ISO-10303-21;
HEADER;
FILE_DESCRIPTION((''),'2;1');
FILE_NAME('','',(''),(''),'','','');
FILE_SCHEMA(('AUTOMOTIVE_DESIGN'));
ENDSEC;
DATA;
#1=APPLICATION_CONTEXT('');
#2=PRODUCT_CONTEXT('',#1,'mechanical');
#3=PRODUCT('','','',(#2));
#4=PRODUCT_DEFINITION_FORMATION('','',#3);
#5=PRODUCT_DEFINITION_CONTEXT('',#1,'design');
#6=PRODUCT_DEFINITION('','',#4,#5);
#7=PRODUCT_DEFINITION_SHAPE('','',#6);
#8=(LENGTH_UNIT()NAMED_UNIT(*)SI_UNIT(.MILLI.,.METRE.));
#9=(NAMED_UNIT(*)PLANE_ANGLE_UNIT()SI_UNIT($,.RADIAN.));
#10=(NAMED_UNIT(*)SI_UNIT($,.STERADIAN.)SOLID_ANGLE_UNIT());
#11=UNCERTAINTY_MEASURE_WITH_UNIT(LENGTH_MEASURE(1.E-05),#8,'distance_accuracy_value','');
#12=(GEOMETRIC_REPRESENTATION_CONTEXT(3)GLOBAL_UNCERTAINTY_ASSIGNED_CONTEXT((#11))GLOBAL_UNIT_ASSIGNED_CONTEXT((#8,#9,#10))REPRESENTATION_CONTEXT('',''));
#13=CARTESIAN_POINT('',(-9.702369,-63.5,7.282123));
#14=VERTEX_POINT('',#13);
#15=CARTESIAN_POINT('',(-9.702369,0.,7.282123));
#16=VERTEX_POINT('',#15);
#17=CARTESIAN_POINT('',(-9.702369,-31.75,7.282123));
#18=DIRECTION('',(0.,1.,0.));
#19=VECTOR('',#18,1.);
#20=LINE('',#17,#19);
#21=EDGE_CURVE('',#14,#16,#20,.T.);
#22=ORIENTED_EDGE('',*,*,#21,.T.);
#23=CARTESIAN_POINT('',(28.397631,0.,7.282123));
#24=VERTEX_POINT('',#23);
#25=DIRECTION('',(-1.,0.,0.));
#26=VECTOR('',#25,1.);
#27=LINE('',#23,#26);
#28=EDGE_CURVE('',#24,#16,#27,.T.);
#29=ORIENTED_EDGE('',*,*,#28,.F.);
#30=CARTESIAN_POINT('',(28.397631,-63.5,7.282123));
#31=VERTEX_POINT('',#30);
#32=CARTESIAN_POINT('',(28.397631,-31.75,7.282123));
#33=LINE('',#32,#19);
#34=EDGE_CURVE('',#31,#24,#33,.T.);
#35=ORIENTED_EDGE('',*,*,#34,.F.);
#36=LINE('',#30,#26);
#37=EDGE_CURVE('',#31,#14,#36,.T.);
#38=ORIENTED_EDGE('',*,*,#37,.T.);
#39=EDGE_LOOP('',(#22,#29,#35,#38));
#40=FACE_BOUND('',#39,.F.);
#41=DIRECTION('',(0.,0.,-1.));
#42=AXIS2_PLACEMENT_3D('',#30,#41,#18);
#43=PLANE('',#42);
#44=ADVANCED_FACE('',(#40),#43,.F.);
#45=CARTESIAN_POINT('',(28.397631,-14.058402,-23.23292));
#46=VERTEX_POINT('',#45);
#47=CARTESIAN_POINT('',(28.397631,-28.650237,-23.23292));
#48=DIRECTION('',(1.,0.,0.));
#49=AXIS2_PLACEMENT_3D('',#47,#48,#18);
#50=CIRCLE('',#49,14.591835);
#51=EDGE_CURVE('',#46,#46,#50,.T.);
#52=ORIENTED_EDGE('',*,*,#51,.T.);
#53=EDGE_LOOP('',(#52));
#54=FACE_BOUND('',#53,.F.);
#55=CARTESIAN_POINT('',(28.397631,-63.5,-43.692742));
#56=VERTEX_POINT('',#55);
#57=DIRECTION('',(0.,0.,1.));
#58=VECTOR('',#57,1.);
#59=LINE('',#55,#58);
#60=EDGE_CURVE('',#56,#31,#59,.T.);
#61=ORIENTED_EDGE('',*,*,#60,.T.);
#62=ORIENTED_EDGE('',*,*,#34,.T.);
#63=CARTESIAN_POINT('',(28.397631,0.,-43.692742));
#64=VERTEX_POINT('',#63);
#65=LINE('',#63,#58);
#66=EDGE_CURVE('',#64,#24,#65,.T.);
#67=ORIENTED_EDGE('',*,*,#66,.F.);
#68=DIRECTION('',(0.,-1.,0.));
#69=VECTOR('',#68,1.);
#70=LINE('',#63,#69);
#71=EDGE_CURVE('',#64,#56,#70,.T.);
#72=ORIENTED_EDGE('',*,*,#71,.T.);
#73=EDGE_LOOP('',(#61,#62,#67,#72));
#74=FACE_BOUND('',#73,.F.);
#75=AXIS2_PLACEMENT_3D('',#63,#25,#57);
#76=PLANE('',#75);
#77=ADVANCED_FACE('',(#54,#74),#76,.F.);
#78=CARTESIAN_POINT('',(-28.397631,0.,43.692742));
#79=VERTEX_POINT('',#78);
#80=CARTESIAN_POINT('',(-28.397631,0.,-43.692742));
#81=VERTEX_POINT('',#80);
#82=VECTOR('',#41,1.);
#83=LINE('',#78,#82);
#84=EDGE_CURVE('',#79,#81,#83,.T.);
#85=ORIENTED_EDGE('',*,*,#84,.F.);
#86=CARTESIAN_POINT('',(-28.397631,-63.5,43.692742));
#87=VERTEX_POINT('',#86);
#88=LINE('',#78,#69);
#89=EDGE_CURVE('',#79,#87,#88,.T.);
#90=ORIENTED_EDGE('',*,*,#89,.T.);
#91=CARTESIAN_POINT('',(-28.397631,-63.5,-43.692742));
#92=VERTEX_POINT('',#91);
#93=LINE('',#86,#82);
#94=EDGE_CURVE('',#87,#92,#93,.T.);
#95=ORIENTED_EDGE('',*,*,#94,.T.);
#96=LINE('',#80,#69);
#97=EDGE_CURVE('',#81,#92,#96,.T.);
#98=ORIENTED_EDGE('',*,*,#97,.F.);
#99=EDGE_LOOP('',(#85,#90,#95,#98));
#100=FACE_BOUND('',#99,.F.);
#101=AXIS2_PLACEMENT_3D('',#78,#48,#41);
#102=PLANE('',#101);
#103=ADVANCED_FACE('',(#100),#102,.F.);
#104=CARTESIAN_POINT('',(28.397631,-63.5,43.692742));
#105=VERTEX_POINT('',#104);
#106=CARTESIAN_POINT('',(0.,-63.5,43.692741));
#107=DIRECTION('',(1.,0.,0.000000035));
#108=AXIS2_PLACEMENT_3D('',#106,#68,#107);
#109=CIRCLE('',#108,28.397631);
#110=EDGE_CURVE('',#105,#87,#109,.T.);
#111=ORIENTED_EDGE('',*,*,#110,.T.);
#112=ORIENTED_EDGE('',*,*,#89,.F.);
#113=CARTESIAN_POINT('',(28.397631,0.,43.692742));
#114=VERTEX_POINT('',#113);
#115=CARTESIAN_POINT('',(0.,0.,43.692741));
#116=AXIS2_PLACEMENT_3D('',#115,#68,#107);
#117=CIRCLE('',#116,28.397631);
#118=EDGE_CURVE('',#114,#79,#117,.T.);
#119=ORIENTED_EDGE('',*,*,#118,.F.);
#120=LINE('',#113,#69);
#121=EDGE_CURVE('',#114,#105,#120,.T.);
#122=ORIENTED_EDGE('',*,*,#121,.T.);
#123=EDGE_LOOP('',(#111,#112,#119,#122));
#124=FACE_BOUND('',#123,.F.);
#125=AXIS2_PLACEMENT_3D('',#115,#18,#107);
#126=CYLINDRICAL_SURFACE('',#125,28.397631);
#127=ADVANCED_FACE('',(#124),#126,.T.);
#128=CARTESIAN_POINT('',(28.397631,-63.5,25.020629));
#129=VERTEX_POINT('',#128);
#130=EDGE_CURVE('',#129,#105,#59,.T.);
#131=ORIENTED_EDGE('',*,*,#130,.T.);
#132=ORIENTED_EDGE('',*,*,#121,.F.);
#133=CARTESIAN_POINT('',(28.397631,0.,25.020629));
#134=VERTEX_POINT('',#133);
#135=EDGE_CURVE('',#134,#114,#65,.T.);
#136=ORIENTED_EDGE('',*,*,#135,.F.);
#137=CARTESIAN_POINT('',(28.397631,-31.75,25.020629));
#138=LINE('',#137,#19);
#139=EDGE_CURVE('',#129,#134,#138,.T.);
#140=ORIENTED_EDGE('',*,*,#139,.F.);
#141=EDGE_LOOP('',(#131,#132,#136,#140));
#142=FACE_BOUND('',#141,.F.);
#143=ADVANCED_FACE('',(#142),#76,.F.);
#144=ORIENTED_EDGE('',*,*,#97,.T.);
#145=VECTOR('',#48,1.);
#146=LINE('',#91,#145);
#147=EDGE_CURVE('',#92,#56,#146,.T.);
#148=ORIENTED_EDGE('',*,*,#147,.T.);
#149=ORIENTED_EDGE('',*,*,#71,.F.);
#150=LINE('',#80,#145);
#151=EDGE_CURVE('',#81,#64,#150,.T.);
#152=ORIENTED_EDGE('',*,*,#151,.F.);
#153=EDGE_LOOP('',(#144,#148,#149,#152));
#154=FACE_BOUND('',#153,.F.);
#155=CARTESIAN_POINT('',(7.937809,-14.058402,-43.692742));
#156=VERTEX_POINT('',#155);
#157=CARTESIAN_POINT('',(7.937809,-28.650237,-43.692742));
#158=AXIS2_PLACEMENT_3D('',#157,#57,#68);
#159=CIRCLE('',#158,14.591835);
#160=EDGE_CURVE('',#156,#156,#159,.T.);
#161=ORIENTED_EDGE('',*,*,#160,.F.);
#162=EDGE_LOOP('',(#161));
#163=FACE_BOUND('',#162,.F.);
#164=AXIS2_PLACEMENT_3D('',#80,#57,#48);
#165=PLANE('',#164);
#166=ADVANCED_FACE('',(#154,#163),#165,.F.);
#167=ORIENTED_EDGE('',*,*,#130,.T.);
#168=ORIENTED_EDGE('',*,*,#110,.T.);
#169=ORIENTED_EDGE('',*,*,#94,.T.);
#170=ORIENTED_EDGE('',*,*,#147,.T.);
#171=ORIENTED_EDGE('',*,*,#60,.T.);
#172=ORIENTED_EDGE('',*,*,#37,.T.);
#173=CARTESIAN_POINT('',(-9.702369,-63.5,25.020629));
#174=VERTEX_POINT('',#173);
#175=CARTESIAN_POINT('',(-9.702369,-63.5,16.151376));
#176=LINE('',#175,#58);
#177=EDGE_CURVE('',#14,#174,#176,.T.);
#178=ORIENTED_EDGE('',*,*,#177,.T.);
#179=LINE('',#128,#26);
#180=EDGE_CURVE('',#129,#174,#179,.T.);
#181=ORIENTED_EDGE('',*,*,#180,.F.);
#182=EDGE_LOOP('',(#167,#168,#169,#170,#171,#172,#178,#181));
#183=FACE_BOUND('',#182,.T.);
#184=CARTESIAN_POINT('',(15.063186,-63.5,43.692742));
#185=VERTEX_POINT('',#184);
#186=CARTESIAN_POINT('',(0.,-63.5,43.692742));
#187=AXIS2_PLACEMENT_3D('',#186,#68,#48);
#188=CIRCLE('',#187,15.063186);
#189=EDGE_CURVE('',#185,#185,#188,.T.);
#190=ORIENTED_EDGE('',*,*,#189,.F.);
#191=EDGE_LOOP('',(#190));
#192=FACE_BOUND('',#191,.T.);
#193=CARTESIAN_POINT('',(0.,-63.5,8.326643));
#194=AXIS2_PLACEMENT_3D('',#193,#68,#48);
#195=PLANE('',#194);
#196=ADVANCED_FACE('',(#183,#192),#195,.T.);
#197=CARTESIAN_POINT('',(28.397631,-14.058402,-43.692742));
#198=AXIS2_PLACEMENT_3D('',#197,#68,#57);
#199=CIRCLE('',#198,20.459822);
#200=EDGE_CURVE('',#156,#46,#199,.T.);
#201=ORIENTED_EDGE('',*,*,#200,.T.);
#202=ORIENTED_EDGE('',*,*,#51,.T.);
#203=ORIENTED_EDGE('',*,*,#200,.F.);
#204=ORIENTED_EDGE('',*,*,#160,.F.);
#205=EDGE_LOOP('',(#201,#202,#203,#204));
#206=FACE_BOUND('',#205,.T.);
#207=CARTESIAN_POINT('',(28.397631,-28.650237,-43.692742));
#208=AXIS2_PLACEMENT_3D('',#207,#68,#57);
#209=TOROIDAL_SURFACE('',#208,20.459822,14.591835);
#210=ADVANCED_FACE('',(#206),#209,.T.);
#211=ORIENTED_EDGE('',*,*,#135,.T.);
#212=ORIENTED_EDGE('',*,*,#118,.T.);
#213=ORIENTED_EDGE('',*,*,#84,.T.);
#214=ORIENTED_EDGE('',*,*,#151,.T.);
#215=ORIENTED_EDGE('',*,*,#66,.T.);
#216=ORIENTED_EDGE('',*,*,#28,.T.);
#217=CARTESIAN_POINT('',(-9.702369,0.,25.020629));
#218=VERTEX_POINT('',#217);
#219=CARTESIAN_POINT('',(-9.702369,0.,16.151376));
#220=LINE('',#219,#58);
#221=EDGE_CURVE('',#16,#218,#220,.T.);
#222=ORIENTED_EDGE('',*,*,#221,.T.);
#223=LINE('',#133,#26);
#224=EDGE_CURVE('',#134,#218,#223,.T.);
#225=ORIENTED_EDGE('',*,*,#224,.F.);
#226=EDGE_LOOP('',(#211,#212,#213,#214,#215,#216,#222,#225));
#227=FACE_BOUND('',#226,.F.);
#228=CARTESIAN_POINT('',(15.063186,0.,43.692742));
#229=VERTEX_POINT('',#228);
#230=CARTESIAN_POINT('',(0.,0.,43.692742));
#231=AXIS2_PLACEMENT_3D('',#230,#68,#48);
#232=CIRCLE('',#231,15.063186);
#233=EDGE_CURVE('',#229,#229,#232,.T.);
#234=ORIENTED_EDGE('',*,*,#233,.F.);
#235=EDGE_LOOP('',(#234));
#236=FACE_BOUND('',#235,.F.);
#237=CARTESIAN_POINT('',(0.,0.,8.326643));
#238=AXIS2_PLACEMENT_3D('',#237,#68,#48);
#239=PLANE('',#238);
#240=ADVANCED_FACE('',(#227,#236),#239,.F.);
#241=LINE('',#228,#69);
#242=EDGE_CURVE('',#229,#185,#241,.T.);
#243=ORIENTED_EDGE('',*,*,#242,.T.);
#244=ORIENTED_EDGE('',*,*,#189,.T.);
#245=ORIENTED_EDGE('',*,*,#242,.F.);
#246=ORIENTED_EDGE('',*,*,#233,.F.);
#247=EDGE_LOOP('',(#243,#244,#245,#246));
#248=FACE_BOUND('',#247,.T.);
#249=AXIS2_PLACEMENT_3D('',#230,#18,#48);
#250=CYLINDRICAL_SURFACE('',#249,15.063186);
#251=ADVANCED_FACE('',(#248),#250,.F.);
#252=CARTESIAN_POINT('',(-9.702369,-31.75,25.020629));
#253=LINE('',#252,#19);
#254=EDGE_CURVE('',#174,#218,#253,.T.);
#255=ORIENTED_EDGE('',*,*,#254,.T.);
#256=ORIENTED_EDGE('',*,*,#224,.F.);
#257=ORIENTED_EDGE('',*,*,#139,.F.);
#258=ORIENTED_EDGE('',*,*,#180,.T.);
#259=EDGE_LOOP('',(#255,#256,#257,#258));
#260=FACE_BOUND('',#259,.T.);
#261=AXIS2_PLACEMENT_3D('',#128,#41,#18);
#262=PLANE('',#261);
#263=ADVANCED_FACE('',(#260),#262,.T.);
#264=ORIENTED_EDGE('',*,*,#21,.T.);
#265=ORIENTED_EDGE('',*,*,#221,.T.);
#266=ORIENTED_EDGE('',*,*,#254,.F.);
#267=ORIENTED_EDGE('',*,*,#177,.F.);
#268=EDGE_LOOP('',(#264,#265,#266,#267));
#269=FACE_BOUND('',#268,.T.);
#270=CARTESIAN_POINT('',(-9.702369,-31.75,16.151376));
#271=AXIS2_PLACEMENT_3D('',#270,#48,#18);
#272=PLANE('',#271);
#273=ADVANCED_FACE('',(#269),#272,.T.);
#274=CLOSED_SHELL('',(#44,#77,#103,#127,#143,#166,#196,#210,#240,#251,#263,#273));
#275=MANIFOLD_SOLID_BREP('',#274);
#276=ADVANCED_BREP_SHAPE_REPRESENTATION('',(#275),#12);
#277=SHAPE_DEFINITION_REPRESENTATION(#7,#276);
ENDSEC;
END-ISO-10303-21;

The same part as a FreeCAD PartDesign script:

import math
import FreeCAD as App
import Part
import Sketcher

V = App.Vector
Q = App.Units.Quantity


def add_polygon(sketch, points):
    """Adds a closed chain of lines whose ends are joined by coincident constraints."""
    first, n = sketch.GeometryCount, len(points)
    for a, b in zip(points, points[1:] + points[:1]):
        sketch.addGeometry(Part.LineSegment(App.Vector(*a, 0), App.Vector(*b, 0)), False)
    for i in range(n):
        sketch.addConstraint(Sketcher.Constraint("Coincident", first + i, 2, first + (i + 1) % n, 1))

doc = App.newDocument("Part")
body = doc.addObject("PartDesign::Body", "Body")

# Sketch on XZ plane
sketch1 = body.newObject("Sketcher::SketchObject", "Sketch")
sketch1.AttachmentSupport = (doc.getObject("XZ_Plane"), [""])
sketch1.MapMode = "FlatFace"
sketch1.addGeometry([
    Part.LineSegment(V(-28, -44, 0), V(28, -44, 0)),  # 0
    Part.LineSegment(V(28, -44, 0), V(28, 44, 0)),  # 1
    Part.ArcOfCircle(Part.Circle(V(0, 44, 0), V(0, 0, 1), 28), math.radians(0), math.radians(180)),  # 2
    Part.LineSegment(V(-28, 44, 0), V(-28, -44, 0)),  # 3
    Part.Circle(V(0, 44, 0), V(0, 0, 1), 15),  # 4
], False)
sketch1.addConstraint([
    Sketcher.Constraint("Coincident", 0, 2, 1, 1),
    Sketcher.Constraint("Tangent", 1, 2, 2, 1),
    Sketcher.Constraint("Tangent", 2, 2, 3, 1),
    Sketcher.Constraint("Coincident", 3, 2, 0, 1),
    Sketcher.Constraint("Horizontal", 0),
    Sketcher.Constraint("Vertical", 1),
    Sketcher.Constraint("Vertical", 3),
    Sketcher.Constraint("Coincident", 4, 3, 2, 3),
    Sketcher.Constraint("Symmetric", 0, 2, 2, 2, -1, 1),
    Sketcher.Constraint("Diameter", 4, 30.126372),
    Sketcher.Constraint("Radius", 2, 28.397631),
    Sketcher.Constraint("DistanceY", 1, 1, 1, 2, 87.385484),
])
pad1 = body.newObject("PartDesign::Pad", "Pad")
pad1.Profile = sketch1
pad1.Length = Q("2.5 in")

# Sketch on YZ plane
sketch2 = body.newObject("Sketcher::SketchObject", "Sketch001")
sketch2.AttachmentSupport = (doc.getObject("YZ_Plane"), [""])
sketch2.MapMode = "FlatFace"
sketch2.AttachmentOffset = App.Placement(V(0, 0, 28.397631), App.Rotation())
add_polygon(sketch2, [(-64, 25), (-64, 7), (0, 7), (0, 25)])  # lines 0-3
sketch2.addConstraint([
    Sketcher.Constraint("Vertical", 0),
    Sketcher.Constraint("Horizontal", 1),
    Sketcher.Constraint("Vertical", 2),
    Sketcher.Constraint("Horizontal", 3),
    Sketcher.Constraint("PointOnObject", 1, 2, -2),
    Sketcher.Constraint("DistanceX", 1, 1, 1, 2, Q("2.5 in")),
    Sketcher.Constraint("DistanceY", 0, 2, 0, 1, 17.738506),
    Sketcher.Constraint("DistanceY", -1, 1, 2, 2, 25.020629),
])
pocket1 = body.newObject("PartDesign::Pocket", "Pocket")
pocket1.Profile = sketch2
pocket1.Length = Q("1.5 in")

# Sketch on YZ plane
sketch3 = body.newObject("Sketcher::SketchObject", "Sketch002")
sketch3.AttachmentSupport = (doc.getObject("YZ_Plane"), [""])
sketch3.MapMode = "FlatFace"
sketch3.AttachmentOffset = App.Placement(V(0, 0, 28.397631), App.Rotation())
sketch3.addGeometry(Part.Circle(V(-29, -23, 0), V(0, 0, 1), 15), False)
sketch3.addGeometry(Part.LineSegment(V(-29, -44, 0), V(-39, -44, 0)), True)  # axis
sketch3.addConstraint([
    Sketcher.Constraint("Horizontal", 1),
    Sketcher.Constraint("Vertical", 0, 3, 1, 1),
    Sketcher.Constraint("Diameter", 0, 29.18367),
    Sketcher.Constraint("DistanceX", 1, 2, 1, 1, 10.0),
    Sketcher.Constraint("DistanceY", 0, 3, -1, 1, 23.23292),
    Sketcher.Constraint("DistanceX", 0, 3, -1, 1, 28.650237),
    Sketcher.Constraint("DistanceY", 1, 1, -1, 1, 43.692742),
])
revolution = body.newObject("PartDesign::Revolution", "Revolution")
revolution.Profile = sketch3
revolution.ReferenceAxis = (sketch3, ["Axis0"])
revolution.Angle = 360

doc.recompute()
